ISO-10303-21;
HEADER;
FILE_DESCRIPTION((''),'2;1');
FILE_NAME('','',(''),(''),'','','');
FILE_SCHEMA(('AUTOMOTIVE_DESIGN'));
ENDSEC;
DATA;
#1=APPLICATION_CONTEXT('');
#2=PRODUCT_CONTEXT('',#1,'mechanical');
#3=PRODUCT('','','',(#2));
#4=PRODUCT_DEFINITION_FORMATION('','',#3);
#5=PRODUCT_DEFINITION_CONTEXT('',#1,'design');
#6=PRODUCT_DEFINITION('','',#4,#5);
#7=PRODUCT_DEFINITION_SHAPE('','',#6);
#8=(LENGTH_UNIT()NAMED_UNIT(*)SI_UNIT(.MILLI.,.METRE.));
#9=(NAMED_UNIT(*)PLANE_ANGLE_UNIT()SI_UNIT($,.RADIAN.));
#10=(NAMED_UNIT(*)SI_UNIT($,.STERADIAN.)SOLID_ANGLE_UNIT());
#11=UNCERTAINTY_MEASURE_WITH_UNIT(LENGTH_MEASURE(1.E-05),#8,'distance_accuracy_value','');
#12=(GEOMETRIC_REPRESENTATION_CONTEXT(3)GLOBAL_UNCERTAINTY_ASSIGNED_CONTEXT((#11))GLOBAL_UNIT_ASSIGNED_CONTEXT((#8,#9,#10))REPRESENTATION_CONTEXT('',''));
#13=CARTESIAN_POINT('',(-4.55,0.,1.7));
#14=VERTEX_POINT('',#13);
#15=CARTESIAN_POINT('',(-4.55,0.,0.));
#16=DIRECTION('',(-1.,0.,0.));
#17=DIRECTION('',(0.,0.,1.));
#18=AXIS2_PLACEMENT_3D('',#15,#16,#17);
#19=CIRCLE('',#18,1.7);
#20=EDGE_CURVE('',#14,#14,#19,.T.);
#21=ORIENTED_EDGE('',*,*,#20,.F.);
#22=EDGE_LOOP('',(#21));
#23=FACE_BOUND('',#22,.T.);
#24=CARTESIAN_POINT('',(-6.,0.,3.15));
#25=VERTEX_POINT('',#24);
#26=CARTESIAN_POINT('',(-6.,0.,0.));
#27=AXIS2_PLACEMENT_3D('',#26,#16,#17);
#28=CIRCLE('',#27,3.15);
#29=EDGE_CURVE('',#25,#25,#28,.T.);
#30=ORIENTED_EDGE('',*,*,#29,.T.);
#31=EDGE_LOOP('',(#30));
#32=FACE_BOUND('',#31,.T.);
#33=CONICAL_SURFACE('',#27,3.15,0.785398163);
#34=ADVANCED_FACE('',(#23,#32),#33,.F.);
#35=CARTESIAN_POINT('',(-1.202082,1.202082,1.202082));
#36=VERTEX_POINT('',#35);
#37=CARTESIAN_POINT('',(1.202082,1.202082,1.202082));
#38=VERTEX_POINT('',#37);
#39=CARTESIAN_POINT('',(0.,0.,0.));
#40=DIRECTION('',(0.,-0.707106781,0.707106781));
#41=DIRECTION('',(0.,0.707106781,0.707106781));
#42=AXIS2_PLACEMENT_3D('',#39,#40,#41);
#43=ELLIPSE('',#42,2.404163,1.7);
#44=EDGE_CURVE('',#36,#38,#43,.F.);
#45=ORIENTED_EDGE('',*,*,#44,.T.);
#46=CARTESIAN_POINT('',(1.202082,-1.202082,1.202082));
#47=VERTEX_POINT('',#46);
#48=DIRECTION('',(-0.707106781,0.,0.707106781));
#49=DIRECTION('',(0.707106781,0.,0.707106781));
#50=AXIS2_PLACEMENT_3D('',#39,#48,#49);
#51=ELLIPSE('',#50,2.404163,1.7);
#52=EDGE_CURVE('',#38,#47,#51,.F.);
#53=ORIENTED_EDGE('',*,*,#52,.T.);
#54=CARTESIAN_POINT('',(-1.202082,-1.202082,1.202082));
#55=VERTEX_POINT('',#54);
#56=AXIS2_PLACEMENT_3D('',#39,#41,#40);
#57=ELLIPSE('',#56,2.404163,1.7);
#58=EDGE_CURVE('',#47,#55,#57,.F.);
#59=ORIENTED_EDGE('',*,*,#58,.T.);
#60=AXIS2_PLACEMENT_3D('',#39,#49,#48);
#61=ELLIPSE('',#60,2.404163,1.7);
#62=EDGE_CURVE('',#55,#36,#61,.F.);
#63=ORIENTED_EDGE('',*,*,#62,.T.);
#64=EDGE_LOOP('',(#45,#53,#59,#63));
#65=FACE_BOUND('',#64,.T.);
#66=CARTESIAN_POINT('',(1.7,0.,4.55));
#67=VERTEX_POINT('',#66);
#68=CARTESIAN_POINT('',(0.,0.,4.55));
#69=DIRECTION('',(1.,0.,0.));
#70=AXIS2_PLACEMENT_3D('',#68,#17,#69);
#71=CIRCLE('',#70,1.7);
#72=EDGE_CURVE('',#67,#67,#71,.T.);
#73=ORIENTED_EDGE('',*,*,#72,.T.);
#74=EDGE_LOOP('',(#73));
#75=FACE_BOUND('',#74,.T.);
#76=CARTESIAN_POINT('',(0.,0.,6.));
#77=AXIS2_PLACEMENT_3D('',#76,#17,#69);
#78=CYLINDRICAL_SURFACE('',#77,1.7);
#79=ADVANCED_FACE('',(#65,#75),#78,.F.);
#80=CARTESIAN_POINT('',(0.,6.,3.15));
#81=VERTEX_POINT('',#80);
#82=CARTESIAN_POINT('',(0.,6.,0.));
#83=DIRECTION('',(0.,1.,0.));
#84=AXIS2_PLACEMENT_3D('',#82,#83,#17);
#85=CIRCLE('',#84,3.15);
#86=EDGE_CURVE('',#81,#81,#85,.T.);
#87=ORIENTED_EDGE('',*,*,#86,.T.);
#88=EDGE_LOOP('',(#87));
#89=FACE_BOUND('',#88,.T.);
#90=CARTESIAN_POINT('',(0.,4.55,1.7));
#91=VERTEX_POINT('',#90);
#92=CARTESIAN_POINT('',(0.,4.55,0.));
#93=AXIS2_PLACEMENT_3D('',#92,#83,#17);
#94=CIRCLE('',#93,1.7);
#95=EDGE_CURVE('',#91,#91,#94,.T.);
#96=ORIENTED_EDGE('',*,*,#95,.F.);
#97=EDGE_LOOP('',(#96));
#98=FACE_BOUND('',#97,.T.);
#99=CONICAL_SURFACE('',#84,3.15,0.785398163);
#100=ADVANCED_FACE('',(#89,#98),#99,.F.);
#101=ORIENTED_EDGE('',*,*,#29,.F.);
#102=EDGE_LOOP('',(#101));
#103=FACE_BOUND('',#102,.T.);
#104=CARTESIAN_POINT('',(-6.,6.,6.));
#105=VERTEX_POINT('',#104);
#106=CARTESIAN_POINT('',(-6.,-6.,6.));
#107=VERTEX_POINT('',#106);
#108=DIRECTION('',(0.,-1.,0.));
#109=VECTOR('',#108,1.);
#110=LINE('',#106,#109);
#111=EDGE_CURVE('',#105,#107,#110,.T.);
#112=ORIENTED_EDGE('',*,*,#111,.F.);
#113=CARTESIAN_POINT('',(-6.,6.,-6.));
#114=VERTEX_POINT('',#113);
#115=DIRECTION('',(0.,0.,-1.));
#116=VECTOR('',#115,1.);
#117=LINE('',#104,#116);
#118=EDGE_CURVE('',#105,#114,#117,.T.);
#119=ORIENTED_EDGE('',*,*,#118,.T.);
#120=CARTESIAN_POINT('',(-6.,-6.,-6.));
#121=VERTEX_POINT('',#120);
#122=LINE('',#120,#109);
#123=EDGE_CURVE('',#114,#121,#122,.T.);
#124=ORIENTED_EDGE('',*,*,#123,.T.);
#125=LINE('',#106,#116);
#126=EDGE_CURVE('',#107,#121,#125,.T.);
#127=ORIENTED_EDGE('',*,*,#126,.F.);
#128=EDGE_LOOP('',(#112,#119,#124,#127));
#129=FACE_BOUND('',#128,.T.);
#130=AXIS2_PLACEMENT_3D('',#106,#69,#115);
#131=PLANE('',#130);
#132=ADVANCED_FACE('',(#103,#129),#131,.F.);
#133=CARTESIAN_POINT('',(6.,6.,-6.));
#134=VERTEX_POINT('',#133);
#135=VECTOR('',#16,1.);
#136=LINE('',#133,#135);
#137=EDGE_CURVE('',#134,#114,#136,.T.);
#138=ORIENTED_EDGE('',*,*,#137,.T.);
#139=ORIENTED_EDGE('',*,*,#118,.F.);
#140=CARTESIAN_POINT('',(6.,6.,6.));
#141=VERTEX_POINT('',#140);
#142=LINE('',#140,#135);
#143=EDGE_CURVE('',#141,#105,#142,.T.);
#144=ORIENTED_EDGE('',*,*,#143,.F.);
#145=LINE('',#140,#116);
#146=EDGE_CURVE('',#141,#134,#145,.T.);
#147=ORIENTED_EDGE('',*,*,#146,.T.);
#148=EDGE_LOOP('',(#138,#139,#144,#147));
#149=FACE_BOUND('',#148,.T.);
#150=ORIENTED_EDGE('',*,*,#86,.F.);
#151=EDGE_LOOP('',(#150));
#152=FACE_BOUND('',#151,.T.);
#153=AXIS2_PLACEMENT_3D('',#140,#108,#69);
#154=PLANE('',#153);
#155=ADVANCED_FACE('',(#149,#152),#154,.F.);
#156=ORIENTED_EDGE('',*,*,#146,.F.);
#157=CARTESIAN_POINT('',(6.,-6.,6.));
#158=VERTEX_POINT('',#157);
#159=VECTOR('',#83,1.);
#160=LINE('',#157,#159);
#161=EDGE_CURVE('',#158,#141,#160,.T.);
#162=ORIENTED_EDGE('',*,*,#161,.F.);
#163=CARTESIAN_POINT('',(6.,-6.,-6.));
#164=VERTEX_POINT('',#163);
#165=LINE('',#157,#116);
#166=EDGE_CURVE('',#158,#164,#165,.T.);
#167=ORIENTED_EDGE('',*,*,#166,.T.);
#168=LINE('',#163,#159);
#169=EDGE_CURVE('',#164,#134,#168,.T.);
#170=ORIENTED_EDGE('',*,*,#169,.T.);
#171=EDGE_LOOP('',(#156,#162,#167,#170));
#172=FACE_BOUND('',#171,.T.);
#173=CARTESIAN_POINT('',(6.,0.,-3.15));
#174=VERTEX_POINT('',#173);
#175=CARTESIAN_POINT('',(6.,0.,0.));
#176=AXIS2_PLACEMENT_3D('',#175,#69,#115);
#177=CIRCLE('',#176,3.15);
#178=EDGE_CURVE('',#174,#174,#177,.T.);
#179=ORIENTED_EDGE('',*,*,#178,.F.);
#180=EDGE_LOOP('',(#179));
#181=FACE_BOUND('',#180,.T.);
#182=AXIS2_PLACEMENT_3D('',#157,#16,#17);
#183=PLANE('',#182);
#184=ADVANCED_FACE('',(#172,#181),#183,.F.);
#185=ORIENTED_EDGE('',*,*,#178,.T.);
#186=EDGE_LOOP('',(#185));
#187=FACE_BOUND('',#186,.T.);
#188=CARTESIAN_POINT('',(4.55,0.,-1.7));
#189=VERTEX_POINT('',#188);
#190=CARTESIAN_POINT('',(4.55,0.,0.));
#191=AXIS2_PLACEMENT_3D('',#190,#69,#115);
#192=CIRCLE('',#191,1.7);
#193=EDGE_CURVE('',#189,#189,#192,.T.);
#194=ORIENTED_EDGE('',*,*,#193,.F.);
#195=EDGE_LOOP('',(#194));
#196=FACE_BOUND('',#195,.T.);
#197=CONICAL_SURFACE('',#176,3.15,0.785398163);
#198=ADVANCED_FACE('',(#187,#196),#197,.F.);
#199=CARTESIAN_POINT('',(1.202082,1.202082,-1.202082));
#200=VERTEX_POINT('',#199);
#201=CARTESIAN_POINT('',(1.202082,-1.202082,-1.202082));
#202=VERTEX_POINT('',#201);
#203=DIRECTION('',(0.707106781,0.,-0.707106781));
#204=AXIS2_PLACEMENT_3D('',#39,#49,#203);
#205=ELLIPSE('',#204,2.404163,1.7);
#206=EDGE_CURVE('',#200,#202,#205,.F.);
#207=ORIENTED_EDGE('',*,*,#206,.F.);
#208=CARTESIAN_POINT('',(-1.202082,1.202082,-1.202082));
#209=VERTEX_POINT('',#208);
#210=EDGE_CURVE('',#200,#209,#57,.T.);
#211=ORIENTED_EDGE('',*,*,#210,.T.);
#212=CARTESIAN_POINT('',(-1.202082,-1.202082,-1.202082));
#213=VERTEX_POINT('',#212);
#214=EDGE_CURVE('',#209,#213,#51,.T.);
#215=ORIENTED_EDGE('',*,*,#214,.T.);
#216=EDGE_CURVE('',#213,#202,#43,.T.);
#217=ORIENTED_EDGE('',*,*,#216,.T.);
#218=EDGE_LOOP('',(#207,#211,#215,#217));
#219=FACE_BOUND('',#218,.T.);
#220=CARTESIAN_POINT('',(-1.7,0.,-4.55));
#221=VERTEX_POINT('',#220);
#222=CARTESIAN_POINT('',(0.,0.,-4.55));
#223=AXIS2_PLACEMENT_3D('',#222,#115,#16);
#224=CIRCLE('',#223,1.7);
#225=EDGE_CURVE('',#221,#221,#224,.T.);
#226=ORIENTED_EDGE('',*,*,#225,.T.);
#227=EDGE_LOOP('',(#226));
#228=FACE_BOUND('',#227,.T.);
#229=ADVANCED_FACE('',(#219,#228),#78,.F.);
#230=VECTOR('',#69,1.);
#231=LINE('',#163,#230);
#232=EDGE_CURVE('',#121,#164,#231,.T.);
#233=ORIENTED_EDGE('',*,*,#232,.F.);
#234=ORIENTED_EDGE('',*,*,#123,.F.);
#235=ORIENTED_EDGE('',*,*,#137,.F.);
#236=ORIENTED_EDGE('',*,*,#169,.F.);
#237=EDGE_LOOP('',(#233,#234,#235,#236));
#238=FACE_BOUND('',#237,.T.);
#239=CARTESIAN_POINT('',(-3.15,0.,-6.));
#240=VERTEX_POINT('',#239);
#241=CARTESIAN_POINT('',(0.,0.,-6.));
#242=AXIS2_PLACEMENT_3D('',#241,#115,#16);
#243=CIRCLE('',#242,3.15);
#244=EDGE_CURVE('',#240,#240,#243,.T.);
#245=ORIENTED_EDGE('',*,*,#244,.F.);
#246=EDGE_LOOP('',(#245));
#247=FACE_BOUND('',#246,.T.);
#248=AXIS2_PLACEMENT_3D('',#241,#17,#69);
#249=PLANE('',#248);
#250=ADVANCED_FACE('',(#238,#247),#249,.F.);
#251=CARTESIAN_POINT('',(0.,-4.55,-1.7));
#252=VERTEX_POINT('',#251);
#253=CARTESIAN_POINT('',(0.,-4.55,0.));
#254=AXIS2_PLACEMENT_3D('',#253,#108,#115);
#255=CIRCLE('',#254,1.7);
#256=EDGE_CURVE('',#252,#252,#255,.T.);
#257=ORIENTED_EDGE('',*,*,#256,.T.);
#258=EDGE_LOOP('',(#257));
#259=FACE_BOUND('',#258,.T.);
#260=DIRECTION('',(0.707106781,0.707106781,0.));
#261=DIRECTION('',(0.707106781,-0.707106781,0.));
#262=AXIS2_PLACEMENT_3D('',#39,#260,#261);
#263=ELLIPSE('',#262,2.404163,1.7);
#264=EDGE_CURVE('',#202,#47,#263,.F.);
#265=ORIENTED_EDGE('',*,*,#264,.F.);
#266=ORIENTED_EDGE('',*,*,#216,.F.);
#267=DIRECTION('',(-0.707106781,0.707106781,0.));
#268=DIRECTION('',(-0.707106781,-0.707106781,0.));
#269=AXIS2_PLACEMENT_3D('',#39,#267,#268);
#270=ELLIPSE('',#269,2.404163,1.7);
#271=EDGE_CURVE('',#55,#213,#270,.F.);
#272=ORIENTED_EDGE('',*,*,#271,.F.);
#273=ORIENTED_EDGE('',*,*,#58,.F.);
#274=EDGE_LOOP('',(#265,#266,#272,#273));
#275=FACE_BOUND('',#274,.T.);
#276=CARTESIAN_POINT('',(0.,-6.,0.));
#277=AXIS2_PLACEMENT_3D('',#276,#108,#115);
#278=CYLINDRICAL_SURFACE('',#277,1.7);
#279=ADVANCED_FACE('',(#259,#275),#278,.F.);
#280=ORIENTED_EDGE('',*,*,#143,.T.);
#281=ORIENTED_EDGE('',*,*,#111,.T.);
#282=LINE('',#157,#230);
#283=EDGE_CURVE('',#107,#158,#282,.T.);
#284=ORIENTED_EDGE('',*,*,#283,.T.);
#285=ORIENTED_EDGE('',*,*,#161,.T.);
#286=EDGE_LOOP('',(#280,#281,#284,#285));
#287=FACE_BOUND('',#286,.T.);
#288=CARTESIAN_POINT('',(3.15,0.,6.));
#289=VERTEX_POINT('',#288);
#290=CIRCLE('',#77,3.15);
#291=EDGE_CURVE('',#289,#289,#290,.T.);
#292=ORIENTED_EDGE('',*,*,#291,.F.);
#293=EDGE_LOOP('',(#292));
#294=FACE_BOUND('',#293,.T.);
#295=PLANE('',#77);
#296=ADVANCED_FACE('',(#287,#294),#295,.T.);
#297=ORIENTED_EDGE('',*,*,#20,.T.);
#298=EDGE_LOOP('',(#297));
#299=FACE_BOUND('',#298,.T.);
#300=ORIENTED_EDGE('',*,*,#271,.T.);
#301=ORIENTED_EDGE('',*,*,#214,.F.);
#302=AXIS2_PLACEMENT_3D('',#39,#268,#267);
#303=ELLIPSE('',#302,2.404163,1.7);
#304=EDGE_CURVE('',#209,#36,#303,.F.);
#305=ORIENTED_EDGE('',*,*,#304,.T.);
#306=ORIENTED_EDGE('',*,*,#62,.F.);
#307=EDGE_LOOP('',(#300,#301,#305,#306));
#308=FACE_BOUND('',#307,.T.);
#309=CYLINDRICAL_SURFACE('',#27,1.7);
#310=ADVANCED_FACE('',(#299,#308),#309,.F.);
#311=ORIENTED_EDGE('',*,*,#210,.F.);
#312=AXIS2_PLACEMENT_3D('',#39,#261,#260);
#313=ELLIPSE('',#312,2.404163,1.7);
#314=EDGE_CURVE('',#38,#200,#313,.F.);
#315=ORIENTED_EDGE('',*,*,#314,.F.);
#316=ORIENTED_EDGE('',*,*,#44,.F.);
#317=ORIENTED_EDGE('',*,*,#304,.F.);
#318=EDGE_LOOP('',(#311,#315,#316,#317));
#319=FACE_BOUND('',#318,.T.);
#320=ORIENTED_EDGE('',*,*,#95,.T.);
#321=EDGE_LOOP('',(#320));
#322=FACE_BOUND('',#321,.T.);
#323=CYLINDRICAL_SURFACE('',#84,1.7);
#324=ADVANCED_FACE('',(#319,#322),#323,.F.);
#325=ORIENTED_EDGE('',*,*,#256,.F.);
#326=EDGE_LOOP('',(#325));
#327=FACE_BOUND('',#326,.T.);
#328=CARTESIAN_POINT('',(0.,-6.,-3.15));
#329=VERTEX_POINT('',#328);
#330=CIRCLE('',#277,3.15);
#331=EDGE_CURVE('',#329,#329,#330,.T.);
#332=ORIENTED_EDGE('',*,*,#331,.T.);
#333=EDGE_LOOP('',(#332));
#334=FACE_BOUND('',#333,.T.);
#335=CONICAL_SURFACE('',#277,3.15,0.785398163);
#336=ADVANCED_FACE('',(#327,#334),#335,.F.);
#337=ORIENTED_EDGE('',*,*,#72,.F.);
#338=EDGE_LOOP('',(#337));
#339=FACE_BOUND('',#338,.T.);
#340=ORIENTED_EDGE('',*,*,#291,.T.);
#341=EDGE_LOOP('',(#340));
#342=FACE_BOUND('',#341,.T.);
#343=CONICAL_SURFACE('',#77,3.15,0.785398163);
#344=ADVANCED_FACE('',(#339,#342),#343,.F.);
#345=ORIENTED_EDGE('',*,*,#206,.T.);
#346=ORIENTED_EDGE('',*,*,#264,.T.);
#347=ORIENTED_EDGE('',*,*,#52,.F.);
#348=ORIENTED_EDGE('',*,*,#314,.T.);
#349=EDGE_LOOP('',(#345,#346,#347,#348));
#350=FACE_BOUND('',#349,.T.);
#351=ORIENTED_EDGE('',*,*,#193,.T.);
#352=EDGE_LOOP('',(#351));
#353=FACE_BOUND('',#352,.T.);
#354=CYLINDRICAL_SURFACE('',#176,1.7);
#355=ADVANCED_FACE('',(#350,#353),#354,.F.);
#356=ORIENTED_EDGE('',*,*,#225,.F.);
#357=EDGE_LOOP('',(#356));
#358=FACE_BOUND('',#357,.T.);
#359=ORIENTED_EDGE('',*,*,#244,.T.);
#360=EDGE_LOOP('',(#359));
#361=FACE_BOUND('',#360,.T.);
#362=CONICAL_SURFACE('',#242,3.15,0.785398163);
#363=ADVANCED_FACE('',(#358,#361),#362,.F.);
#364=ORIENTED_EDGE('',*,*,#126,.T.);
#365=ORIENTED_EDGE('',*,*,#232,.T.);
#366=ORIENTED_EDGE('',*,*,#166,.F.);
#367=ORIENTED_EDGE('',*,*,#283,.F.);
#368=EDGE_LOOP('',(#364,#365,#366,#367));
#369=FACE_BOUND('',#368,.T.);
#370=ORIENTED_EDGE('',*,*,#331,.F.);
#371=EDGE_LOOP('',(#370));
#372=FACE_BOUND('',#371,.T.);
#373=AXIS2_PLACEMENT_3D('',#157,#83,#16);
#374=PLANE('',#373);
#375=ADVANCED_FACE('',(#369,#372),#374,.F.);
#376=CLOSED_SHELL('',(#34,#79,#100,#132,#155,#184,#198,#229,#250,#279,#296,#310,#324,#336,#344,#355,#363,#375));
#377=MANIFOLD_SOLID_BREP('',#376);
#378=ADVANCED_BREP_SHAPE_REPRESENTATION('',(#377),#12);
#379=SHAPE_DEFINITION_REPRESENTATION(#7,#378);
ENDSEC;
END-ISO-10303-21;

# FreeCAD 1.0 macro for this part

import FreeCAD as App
import Part
import Sketcher

V = App.Vector

doc = App.newDocument("Part")
params = doc.addObject("Spreadsheet::Sheet", "Params")
for row, (alias, value) in enumerate([
    ("sketch1_width", "12 mm"),
    ("pad1_length", "12 mm"),
    ("sketch2_diameter", "3.4 mm"),
    ("hole_diameter", "3.4 mm"),
    ("hole_depth", "6 mm"),
    ("hole_csink_diameter", "6.3 mm"),
    ("sketch3_diameter", "3.4 mm"),
    ("hole2_diameter", "3.4 mm"),
    ("hole2_depth", "6 mm"),
    ("hole2_csink_diameter", "6.3 mm"),
    ("sketch4_diameter", "3.4 mm"),
    ("hole3_diameter", "3.4 mm"),
    ("hole3_depth", "6 mm"),
    ("hole3_csink_diameter", "6.3 mm"),
    ("sketch5_diameter", "3.4 mm"),
    ("hole4_diameter", "3.4 mm"),
    ("hole4_depth", "6 mm"),
    ("hole4_csink_diameter", "6.3 mm"),
    ("sketch6_diameter", "3.4 mm"),
    ("hole5_diameter", "3.4 mm"),
    ("hole5_depth", "6 mm"),
    ("hole5_csink_diameter", "6.3 mm"),
    ("sketch7_diameter", "3.4 mm"),
    ("hole6_diameter", "3.4 mm"),
    ("hole6_depth", "6 mm"),
    ("hole6_csink_diameter", "6.3 mm"),
], start=1):
    params.set(f"A{row}", alias)
    params.set(f"B{row}", "=" + value)
    params.setAlias(f"B{row}", alias)

body = doc.addObject("PartDesign::Body", "Body")

# Sketch on XY plane
sketch1 = body.newObject("Sketcher::SketchObject", "Sketch")
sketch1.AttachmentSupport = (doc.getObject("XY_Plane"), [""])
sketch1.MapMode = "FlatFace"
sketch1.addGeometry([
    Part.LineSegment(V(-6, 6, 0), V(-6, -6, 0)),
    Part.LineSegment(V(-6, -6, 0), V(6, -6, 0)),
    Part.LineSegment(V(6, -6, 0), V(6, 6, 0)),
    Part.LineSegment(V(6, 6, 0), V(-6, 6, 0)),
], False)
sketch1.addConstraint([
    Sketcher.Constraint("Coincident", 0, 2, 1, 1),
    Sketcher.Constraint("Coincident", 1, 2, 2, 1),
    Sketcher.Constraint("Coincident", 2, 2, 3, 1),
    Sketcher.Constraint("Coincident", 3, 2, 0, 1),
    Sketcher.Constraint("Vertical", 0),
    Sketcher.Constraint("Horizontal", 1),
    Sketcher.Constraint("Vertical", 2),
    Sketcher.Constraint("Horizontal", 3),
    Sketcher.Constraint("Symmetric", 0, 2, 2, 2, -1, 1),
    Sketcher.Constraint("Equal", 3, 0),
    Sketcher.Constraint("DistanceX", 1, 1, 1, 2, 12.0),
])
sketch1.setExpression("Constraints[10]", "Params.sketch1_width")
pad1 = body.newObject("PartDesign::Pad", "Pad")
pad1.Profile = sketch1
pad1.setExpression("Length", "Params.pad1_length")
pad1.Midplane = True

# Sketch on XY plane
sketch2 = body.newObject("Sketcher::SketchObject", "Sketch001")
sketch2.AttachmentSupport = (doc.getObject("XY_Plane"), [""])
sketch2.MapMode = "FlatFace"
sketch2.AttachmentOffset = App.Placement(V(0, 0, 6), App.Rotation())
sketch2.addGeometry(Part.Circle(V(0, 0, 0), V(0, 0, 1), 1.7), False)
sketch2.addConstraint([
    Sketcher.Constraint("Coincident", 0, 3, -1, 1),
    Sketcher.Constraint("Diameter", 0, 3.4),
])
sketch2.setExpression("Constraints[1]", "Params.sketch2_diameter")
doc.recompute()
hole = body.newObject("PartDesign::Hole", "Hole")
hole.Profile = sketch2
hole.ThreadType = "None"
hole.setExpression("Diameter", "Params.hole_diameter")
hole.DepthType = "Dimension"
hole.setExpression("Depth", "Params.hole_depth")
hole.DrillPoint = "Angled"
hole.DrillPointAngle = 118
hole.HoleCutType = "Countersink"
hole.setExpression("HoleCutDiameter", "Params.hole_csink_diameter")
hole.HoleCutCountersinkAngle = 90

# Sketch on YZ plane
sketch3 = body.newObject("Sketcher::SketchObject", "Sketch002")
sketch3.AttachmentSupport = (doc.getObject("YZ_Plane"), [""])
sketch3.MapMode = "FlatFace"
sketch3.AttachmentOffset = App.Placement(V(0, 0, 6), App.Rotation())
sketch3.addGeometry(Part.Circle(V(0, 0, 0), V(0, 0, 1), 1.7), False)
sketch3.addConstraint([
    Sketcher.Constraint("Coincident", 0, 3, -1, 1),
    Sketcher.Constraint("Diameter", 0, 3.4),
])
sketch3.setExpression("Constraints[1]", "Params.sketch3_diameter")
doc.recompute()
hole2 = body.newObject("PartDesign::Hole", "Hole001")
hole2.Profile = sketch3
hole2.ThreadType = "None"
hole2.setExpression("Diameter", "Params.hole2_diameter")
hole2.DepthType = "Dimension"
hole2.setExpression("Depth", "Params.hole2_depth")
hole2.DrillPoint = "Angled"
hole2.DrillPointAngle = 118
hole2.HoleCutType = "Countersink"
hole2.setExpression("HoleCutDiameter", "Params.hole2_csink_diameter")
hole2.HoleCutCountersinkAngle = 90

# Sketch on XY plane
sketch4 = body.newObject("Sketcher::SketchObject", "Sketch003")
sketch4.AttachmentSupport = (doc.getObject("XY_Plane"), [""])
sketch4.MapMode = "FlatFace"
sketch4.AttachmentOffset = App.Placement(V(0, 0, -6), App.Rotation())
sketch4.addGeometry(Part.Circle(V(0, 0, 0), V(0, 0, 1), 1.7), False)
sketch4.addConstraint([
    Sketcher.Constraint("Coincident", 0, 3, -1, 1),
    Sketcher.Constraint("Diameter", 0, 3.4),
])
sketch4.setExpression("Constraints[1]", "Params.sketch4_diameter")
doc.recompute()
hole3 = body.newObject("PartDesign::Hole", "Hole002")
hole3.Profile = sketch4
hole3.ThreadType = "None"
hole3.setExpression("Diameter", "Params.hole3_diameter")
hole3.DepthType = "Dimension"
hole3.setExpression("Depth", "Params.hole3_depth")
hole3.DrillPoint = "Angled"
hole3.DrillPointAngle = 118
hole3.HoleCutType = "Countersink"
hole3.setExpression("HoleCutDiameter", "Params.hole3_csink_diameter")
hole3.HoleCutCountersinkAngle = 90
hole3.Reversed = True

# Sketch on YZ plane
sketch5 = body.newObject("Sketcher::SketchObject", "Sketch004")
sketch5.AttachmentSupport = (doc.getObject("YZ_Plane"), [""])
sketch5.MapMode = "FlatFace"
sketch5.AttachmentOffset = App.Placement(V(0, 0, -6), App.Rotation())
sketch5.addGeometry(Part.Circle(V(0, 0, 0), V(0, 0, 1), 1.7), False)
sketch5.addConstraint([
    Sketcher.Constraint("Coincident", 0, 3, -1, 1),
    Sketcher.Constraint("Diameter", 0, 3.4),
])
sketch5.setExpression("Constraints[1]", "Params.sketch5_diameter")
doc.recompute()
hole4 = body.newObject("PartDesign::Hole", "Hole003")
hole4.Profile = sketch5
hole4.ThreadType = "None"
hole4.setExpression("Diameter", "Params.hole4_diameter")
hole4.DepthType = "Dimension"
hole4.setExpression("Depth", "Params.hole4_depth")
hole4.DrillPoint = "Angled"
hole4.DrillPointAngle = 118
hole4.HoleCutType = "Countersink"
hole4.setExpression("HoleCutDiameter", "Params.hole4_csink_diameter")
hole4.HoleCutCountersinkAngle = 90
hole4.Reversed = True

# Sketch on XZ plane
sketch6 = body.newObject("Sketcher::SketchObject", "Sketch005")
sketch6.AttachmentSupport = (doc.getObject("XZ_Plane"), [""])
sketch6.MapMode = "FlatFace"
sketch6.AttachmentOffset = App.Placement(V(0, 0, -6), App.Rotation())
sketch6.addGeometry(Part.Circle(V(0, 0, 0), V(0, 0, 1), 1.7), False)
sketch6.addConstraint([
    Sketcher.Constraint("Coincident", 0, 3, -1, 1),
    Sketcher.Constraint("Diameter", 0, 3.4),
])
sketch6.setExpression("Constraints[1]", "Params.sketch6_diameter")
doc.recompute()
hole5 = body.newObject("PartDesign::Hole", "Hole004")
hole5.Profile = sketch6
hole5.ThreadType = "None"
hole5.setExpression("Diameter", "Params.hole5_diameter")
hole5.DepthType = "Dimension"
hole5.setExpression("Depth", "Params.hole5_depth")
hole5.DrillPoint = "Angled"
hole5.DrillPointAngle = 118
hole5.HoleCutType = "Countersink"
hole5.setExpression("HoleCutDiameter", "Params.hole5_csink_diameter")
hole5.HoleCutCountersinkAngle = 90
hole5.Reversed = True

# Sketch on XZ plane
sketch7 = body.newObject("Sketcher::SketchObject", "Sketch006")
sketch7.AttachmentSupport = (doc.getObject("XZ_Plane"), [""])
sketch7.MapMode = "FlatFace"
sketch7.AttachmentOffset = App.Placement(V(0, 0, 6), App.Rotation())
sketch7.addGeometry(Part.Circle(V(0, 0, 0), V(0, 0, 1), 1.7), False)
sketch7.addConstraint([
    Sketcher.Constraint("Coincident", 0, 3, -1, 1),
    Sketcher.Constraint("Diameter", 0, 3.4),
])
sketch7.setExpression("Constraints[1]", "Params.sketch7_diameter")
doc.recompute()
hole6 = body.newObject("PartDesign::Hole", "Hole005")
hole6.Profile = sketch7
hole6.ThreadType = "None"
hole6.setExpression("Diameter", "Params.hole6_diameter")
hole6.DepthType = "Dimension"
hole6.setExpression("Depth", "Params.hole6_depth")
hole6.DrillPoint = "Angled"
hole6.DrillPointAngle = 118
hole6.HoleCutType = "Countersink"
hole6.setExpression("HoleCutDiameter", "Params.hole6_csink_diameter")
hole6.HoleCutCountersinkAngle = 90

doc.recompute()
